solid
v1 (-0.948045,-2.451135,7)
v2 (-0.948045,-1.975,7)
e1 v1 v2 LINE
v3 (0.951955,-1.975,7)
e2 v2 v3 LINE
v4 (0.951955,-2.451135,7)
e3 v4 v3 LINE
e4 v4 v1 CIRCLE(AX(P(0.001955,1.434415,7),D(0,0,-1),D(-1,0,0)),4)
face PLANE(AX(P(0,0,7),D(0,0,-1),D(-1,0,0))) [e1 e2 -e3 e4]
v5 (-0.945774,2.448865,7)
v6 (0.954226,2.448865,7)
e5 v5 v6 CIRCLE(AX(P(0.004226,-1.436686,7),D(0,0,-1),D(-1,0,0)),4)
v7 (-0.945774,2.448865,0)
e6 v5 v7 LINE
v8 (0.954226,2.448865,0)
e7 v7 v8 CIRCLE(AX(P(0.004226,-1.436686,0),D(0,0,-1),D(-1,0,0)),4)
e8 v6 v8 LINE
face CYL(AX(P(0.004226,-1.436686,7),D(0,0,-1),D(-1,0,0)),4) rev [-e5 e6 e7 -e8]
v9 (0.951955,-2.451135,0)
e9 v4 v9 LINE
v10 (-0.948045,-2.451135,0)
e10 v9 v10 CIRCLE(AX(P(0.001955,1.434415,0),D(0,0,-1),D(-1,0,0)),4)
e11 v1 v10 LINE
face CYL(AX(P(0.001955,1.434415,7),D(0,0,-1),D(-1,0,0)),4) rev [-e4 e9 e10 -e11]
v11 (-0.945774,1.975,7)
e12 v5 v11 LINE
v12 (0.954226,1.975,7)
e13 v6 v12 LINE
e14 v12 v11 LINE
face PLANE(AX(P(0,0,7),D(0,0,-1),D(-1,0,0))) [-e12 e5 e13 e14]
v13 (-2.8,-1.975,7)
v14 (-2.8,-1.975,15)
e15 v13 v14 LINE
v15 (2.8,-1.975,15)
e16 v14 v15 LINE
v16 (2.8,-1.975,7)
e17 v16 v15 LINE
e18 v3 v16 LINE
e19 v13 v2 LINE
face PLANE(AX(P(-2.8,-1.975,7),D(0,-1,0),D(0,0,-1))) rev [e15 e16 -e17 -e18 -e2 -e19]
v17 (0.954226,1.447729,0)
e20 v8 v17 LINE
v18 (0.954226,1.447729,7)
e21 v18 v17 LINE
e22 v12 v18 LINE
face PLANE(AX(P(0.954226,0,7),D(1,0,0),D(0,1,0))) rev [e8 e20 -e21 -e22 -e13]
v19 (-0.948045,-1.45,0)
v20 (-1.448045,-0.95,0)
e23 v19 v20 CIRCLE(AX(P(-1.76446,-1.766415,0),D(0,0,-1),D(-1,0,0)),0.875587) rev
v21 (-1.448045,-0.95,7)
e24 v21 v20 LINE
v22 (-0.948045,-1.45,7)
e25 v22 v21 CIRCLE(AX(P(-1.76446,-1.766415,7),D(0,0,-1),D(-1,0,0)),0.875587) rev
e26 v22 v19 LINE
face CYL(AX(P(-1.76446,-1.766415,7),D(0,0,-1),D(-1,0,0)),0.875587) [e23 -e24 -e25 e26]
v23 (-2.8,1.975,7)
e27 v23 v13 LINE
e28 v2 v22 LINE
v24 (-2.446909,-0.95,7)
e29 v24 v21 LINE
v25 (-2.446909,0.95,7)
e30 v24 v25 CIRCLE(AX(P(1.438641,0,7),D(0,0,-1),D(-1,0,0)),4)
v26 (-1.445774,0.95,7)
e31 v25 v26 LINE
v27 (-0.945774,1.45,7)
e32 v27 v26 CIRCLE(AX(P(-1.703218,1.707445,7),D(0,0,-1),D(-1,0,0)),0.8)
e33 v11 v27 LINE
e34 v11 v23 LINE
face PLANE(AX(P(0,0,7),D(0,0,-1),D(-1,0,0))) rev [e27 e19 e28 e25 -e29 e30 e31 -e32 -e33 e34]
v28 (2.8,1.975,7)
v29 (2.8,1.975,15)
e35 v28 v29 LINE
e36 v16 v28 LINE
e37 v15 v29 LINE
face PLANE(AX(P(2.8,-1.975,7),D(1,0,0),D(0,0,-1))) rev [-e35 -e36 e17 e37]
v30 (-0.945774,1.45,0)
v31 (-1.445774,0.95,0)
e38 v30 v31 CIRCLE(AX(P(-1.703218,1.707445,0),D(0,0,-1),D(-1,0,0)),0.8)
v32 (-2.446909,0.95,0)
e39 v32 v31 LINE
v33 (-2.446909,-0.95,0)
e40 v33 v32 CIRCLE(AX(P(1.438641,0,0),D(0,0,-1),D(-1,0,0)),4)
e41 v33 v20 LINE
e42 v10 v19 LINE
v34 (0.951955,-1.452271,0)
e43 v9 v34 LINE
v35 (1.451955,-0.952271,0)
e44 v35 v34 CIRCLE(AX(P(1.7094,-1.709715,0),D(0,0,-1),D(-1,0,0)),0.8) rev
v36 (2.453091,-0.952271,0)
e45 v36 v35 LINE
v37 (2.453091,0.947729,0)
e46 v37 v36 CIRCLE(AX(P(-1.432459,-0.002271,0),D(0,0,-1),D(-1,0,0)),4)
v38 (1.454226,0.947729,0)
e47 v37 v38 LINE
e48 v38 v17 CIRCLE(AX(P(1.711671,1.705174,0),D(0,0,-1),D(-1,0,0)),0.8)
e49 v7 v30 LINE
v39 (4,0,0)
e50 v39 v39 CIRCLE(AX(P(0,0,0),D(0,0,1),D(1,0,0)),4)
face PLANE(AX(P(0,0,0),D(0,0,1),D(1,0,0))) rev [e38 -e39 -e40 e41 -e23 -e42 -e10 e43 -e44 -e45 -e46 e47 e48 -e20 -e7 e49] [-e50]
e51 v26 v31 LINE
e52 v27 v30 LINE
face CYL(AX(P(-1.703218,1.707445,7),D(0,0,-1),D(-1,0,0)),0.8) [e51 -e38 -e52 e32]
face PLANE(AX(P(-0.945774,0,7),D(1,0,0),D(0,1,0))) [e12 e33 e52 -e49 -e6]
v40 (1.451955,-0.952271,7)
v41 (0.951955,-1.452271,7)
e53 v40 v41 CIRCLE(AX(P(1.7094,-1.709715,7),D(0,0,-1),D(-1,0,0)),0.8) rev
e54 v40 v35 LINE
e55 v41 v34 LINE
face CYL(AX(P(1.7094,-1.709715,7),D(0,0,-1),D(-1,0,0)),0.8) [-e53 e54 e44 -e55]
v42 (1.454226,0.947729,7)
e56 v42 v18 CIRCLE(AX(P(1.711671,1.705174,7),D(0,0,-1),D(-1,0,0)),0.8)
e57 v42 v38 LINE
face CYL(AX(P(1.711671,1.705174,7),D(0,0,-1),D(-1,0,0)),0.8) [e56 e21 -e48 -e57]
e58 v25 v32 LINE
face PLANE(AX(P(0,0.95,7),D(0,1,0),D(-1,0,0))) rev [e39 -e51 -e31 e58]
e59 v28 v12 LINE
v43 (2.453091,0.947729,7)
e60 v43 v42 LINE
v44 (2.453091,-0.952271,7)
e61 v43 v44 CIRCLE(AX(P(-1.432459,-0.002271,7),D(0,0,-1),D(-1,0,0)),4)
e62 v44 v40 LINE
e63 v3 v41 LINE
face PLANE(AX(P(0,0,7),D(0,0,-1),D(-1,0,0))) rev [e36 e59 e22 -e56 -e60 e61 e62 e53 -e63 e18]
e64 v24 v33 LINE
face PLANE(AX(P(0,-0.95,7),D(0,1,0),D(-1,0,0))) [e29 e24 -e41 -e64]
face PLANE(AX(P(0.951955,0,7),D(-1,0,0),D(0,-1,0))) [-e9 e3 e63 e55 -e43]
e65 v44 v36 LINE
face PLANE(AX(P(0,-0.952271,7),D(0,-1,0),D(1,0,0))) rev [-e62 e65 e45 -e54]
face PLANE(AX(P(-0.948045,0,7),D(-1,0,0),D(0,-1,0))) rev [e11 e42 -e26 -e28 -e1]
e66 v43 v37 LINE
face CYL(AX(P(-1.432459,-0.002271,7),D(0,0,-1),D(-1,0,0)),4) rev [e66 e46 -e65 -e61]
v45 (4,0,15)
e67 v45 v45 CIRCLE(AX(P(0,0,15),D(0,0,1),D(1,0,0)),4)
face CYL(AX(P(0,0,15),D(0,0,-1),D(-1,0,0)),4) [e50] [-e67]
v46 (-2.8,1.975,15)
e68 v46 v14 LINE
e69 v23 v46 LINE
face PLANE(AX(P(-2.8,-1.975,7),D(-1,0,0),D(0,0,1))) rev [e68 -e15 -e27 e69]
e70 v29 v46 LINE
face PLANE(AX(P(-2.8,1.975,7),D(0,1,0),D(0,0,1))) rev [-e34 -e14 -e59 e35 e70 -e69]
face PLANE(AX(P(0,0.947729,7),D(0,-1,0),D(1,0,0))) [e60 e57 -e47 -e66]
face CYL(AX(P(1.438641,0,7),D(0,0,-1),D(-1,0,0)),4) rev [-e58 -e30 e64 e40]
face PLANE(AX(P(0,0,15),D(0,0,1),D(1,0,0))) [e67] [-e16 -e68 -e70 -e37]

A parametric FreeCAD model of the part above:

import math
import FreeCAD as App
import Part
import Sketcher

V = App.Vector


def add_polygon(sketch, points):
    """Adds a closed chain of lines whose ends are joined by coincident constraints."""
    first, n = sketch.GeometryCount, len(points)
    for a, b in zip(points, points[1:] + points[:1]):
        sketch.addGeometry(Part.LineSegment(App.Vector(*a, 0), App.Vector(*b, 0)), False)
    for i in range(n):
        sketch.addConstraint(Sketcher.Constraint("Coincident", first + i, 2, first + (i + 1) % n, 1))

doc = App.newDocument("Part")
params = doc.addObject("Spreadsheet::Sheet", "Params")
for row, (alias, value) in enumerate([
    ("sketch1_diameter", "8 mm"),
    ("pad1_length", "15 mm"),
    ("sketch2_width", "5.6 mm"),
    ("sketch2_height", "3.95 mm"),
    ("pocket1_length", "8 mm"),
    ("sketch3_radius", "4 mm"),
    ("sketch3_radius2", "0.8 mm"),
    ("pocket2_length", "7 mm"),
], start=1):
    params.set(f"A{row}", alias)
    params.set(f"B{row}", "=" + value)
    params.setAlias(f"B{row}", alias)

body = doc.addObject("PartDesign::Body", "Body")

sketch1 = body.newObject("Sketcher::SketchObject", "Sketch")
sketch1.AttachmentSupport = (doc.getObject("XY_Plane"), [""])
sketch1.MapMode = "FlatFace"
sketch1.addGeometry(Part.Circle(V(0, 0, 0), V(0, 0, 1), 4), False)
sketch1.addConstraint([
    Sketcher.Constraint("Coincident", 0, 3, -1, 1),
    Sketcher.Constraint("Diameter", 0, 8.0),
])
sketch1.setExpression("Constraints[1]", "Params.sketch1_diameter")
pad1 = body.newObject("PartDesign::Pad", "Pad")
pad1.Profile = sketch1
pad1.setExpression("Length", "Params.pad1_length")

sketch2 = body.newObject("Sketcher::SketchObject", "Sketch001")
sketch2.AttachmentSupport = (doc.getObject("XY_Plane"), [""])
sketch2.MapMode = "FlatFace"
sketch2.AttachmentOffset = App.Placement(V(0, 0, 15), App.Rotation())
add_polygon(sketch2, [(-2.8, 2), (-2.8, -2), (2.8, -2), (2.8, 2)])
sketch2.addConstraint([
    Sketcher.Constraint("Vertical", 0),
    Sketcher.Constraint("Horizontal", 1),
    Sketcher.Constraint("Vertical", 2),
    Sketcher.Constraint("Horizontal", 3),
    Sketcher.Constraint("Symmetric", 0, 2, 2, 2, -1, 1),
    Sketcher.Constraint("DistanceX", 1, 1, 1, 2, 5.6),
    Sketcher.Constraint("DistanceY", 0, 2, 0, 1, 3.95),
])
sketch2.setExpression("Constraints[9]", "Params.sketch2_width")
sketch2.setExpression("Constraints[10]", "Params.sketch2_height")
pocket1 = body.newObject("PartDesign::Pocket", "Pocket")
pocket1.Profile = sketch2
pocket1.setExpression("Length", "Params.pocket1_length")

sketch3 = body.newObject("Sketcher::SketchObject", "Sketch002")
sketch3.AttachmentSupport = (doc.getObject("XY_Plane"), [""])
sketch3.MapMode = "FlatFace"
sketch3.addGeometry([
    Part.LineSegment(V(-0.9, -2.5, 0), V(-0.9, -1.4, 0)),
    Part.ArcOfCircle(Part.Circle(V(-1.8, -1.8, 0), V(0, 0, 1), 0.9), math.radians(21), math.radians(69)),
    Part.LineSegment(V(-1.4, -0.9, 0), V(-2.4, -0.9, 0)),
    Part.ArcOfCircle(Part.Circle(V(1.4, 0, 0), V(0, 0, 1), 4), math.radians(166), math.radians(194)),
    Part.LineSegment(V(-2.4, 0.9, 0), V(-1.4, 0.9, 0)),
    Part.ArcOfCircle(Part.Circle(V(-1.7, 1.7, 0), V(0, 0, 1), 0.8), math.radians(-71), math.radians(-19)),
    Part.LineSegment(V(-0.9, 1.4, 0), V(-0.9, 2.4, 0)),
    Part.ArcOfCircle(Part.Circle(V(0, -1.4, 0), V(0, 0, 1), 4), math.radians(76), math.radians(104)),
    Part.LineSegment(V(1, 2.4, 0), V(1, 1.4, 0)),
    Part.ArcOfCircle(Part.Circle(V(1.7, 1.7, 0), V(0, 0, 1), 0.8), math.radians(-161), math.radians(-109)),
    Part.LineSegment(V(1.5, 0.9, 0), V(2.5, 0.9, 0)),
    Part.ArcOfCircle(Part.Circle(V(-1.4, 0, 0), V(0, 0, 1), 4), math.radians(-14), math.radians(14)),
    Part.LineSegment(V(2.5, -1, 0), V(1.5, -1, 0)),
    Part.ArcOfCircle(Part.Circle(V(1.7, -1.7, 0), V(0, 0, 1), 0.8), math.radians(109), math.radians(161)),
    Part.LineSegment(V(1, -1.5, 0), V(1, -2.5, 0)),
    Part.ArcOfCircle(Part.Circle(V(0, 1.4, 0), V(0, 0, 1), 4), math.radians(-104), math.radians(-76)),
], False)
sketch3.addConstraint([
    Sketcher.Constraint("Coincident", 0, 2, 1, 1),
    Sketcher.Constraint("Coincident", 1, 2, 2, 1),
    Sketcher.Constraint("Coincident", 2, 2, 3, 2),
    Sketcher.Constraint("Coincident", 3, 1, 4, 1),
    Sketcher.Constraint("Coincident", 4, 2, 5, 1),
    Sketcher.Constraint("Coincident", 5, 2, 6, 1),
    Sketcher.Constraint("Coincident", 6, 2, 7, 2),
    Sketcher.Constraint("Coincident", 7, 1, 8, 1),
    Sketcher.Constraint("Coincident", 8, 2, 9, 1),
    Sketcher.Constraint("Coincident", 9, 2, 10, 1),
    Sketcher.Constraint("Coincident", 10, 2, 11, 2),
    Sketcher.Constraint("Coincident", 11, 1, 12, 1),
    Sketcher.Constraint("Coincident", 12, 2, 13, 1),
    Sketcher.Constraint("Coincident", 13, 2, 14, 1),
    Sketcher.Constraint("Coincident", 14, 2, 15, 2),
    Sketcher.Constraint("Coincident", 15, 1, 0, 1),
    Sketcher.Constraint("Vertical", 0),
    Sketcher.Constraint("Horizontal", 2),
    Sketcher.Constraint("Horizontal", 4),
    Sketcher.Constraint("Vertical", 6),
    Sketcher.Constraint("Vertical", 8),
    Sketcher.Constraint("Horizontal", 10),
    Sketcher.Constraint("Horizontal", 12),
    Sketcher.Constraint("Vertical", 14),
    Sketcher.Constraint("Equal", 3, 7),
    Sketcher.Constraint("Equal", 5, 9),
    Sketcher.Constraint("Equal", 7, 11),
    Sketcher.Constraint("Equal", 9, 13),
    Sketcher.Constraint("Equal", 11, 15),
    Sketcher.Constraint("Symmetric", 2, 2, 3, 1, -1),
    Sketcher.Constraint("Horizontal", 6, 2, 7, 1),
    Sketcher.Constraint("Horizontal", 14, 2, 15, 1),
    Sketcher.Constraint("Vertical", 10, 2, 11, 1),
    Sketcher.Constraint("Equal", 2, 10),
    Sketcher.Constraint("Equal", 4, 12),
    Sketcher.Constraint("Equal", 12, 0),
    Sketcher.Constraint("Equal", 10, 6),
    Sketcher.Constraint("Equal", 0, 8),
    Sketcher.Constraint("Equal", 6, 14),
    Sketcher.Constraint("Radius", 3, 4.0),
    Sketcher.Constraint("Radius", 5, 0.8),
    Sketcher.Constraint("DistanceX", 1, 2, 0, 2, 0.5),
    Sketcher.Constraint("DistanceY", 0, 2, 1, 2, 0.5),
    Sketcher.Constraint("DistanceY", 2, 2, 3, 1, 1.9),
    Sketcher.Constraint("DistanceX", 4, 2, 5, 2, 0.5),
    Sketcher.Constraint("DistanceY", 4, 2, 5, 2, 0.5),
    Sketcher.Constraint("DistanceX", 6, 2, 7, 1, 1.9),
    Sketcher.Constraint("DistanceX", 8, 2, 9, 2, 0.5),
    Sketcher.Constraint("DistanceY", 9, 2, 8, 2, 0.5),
    Sketcher.Constraint("DistanceY", 11, 1, 10, 2, 1.9),
    Sketcher.Constraint("DistanceX", 13, 2, 12, 2, 0.5),
    Sketcher.Constraint("Radius", 1, 0.875587),
    Sketcher.Constraint("DistanceX", 1, 3, 11, 3, 0.332),
    Sketcher.Constraint("DistanceX", -1, 1, 13, 3, 1.7094),
    Sketcher.Constraint("DistanceX", 1, 3, 3, 3, 3.203101),
])
sketch3.setExpression("Constraints[39]", "Params.sketch3_radius")
sketch3.setExpression("Constraints[40]", "Params.sketch3_radius2")
pocket2 = body.newObject("PartDesign::Pocket", "Pocket001")
pocket2.Profile = sketch3
pocket2.setExpression("Length", "Params.pocket2_length")
pocket2.Reversed = True

doc.recompute()
